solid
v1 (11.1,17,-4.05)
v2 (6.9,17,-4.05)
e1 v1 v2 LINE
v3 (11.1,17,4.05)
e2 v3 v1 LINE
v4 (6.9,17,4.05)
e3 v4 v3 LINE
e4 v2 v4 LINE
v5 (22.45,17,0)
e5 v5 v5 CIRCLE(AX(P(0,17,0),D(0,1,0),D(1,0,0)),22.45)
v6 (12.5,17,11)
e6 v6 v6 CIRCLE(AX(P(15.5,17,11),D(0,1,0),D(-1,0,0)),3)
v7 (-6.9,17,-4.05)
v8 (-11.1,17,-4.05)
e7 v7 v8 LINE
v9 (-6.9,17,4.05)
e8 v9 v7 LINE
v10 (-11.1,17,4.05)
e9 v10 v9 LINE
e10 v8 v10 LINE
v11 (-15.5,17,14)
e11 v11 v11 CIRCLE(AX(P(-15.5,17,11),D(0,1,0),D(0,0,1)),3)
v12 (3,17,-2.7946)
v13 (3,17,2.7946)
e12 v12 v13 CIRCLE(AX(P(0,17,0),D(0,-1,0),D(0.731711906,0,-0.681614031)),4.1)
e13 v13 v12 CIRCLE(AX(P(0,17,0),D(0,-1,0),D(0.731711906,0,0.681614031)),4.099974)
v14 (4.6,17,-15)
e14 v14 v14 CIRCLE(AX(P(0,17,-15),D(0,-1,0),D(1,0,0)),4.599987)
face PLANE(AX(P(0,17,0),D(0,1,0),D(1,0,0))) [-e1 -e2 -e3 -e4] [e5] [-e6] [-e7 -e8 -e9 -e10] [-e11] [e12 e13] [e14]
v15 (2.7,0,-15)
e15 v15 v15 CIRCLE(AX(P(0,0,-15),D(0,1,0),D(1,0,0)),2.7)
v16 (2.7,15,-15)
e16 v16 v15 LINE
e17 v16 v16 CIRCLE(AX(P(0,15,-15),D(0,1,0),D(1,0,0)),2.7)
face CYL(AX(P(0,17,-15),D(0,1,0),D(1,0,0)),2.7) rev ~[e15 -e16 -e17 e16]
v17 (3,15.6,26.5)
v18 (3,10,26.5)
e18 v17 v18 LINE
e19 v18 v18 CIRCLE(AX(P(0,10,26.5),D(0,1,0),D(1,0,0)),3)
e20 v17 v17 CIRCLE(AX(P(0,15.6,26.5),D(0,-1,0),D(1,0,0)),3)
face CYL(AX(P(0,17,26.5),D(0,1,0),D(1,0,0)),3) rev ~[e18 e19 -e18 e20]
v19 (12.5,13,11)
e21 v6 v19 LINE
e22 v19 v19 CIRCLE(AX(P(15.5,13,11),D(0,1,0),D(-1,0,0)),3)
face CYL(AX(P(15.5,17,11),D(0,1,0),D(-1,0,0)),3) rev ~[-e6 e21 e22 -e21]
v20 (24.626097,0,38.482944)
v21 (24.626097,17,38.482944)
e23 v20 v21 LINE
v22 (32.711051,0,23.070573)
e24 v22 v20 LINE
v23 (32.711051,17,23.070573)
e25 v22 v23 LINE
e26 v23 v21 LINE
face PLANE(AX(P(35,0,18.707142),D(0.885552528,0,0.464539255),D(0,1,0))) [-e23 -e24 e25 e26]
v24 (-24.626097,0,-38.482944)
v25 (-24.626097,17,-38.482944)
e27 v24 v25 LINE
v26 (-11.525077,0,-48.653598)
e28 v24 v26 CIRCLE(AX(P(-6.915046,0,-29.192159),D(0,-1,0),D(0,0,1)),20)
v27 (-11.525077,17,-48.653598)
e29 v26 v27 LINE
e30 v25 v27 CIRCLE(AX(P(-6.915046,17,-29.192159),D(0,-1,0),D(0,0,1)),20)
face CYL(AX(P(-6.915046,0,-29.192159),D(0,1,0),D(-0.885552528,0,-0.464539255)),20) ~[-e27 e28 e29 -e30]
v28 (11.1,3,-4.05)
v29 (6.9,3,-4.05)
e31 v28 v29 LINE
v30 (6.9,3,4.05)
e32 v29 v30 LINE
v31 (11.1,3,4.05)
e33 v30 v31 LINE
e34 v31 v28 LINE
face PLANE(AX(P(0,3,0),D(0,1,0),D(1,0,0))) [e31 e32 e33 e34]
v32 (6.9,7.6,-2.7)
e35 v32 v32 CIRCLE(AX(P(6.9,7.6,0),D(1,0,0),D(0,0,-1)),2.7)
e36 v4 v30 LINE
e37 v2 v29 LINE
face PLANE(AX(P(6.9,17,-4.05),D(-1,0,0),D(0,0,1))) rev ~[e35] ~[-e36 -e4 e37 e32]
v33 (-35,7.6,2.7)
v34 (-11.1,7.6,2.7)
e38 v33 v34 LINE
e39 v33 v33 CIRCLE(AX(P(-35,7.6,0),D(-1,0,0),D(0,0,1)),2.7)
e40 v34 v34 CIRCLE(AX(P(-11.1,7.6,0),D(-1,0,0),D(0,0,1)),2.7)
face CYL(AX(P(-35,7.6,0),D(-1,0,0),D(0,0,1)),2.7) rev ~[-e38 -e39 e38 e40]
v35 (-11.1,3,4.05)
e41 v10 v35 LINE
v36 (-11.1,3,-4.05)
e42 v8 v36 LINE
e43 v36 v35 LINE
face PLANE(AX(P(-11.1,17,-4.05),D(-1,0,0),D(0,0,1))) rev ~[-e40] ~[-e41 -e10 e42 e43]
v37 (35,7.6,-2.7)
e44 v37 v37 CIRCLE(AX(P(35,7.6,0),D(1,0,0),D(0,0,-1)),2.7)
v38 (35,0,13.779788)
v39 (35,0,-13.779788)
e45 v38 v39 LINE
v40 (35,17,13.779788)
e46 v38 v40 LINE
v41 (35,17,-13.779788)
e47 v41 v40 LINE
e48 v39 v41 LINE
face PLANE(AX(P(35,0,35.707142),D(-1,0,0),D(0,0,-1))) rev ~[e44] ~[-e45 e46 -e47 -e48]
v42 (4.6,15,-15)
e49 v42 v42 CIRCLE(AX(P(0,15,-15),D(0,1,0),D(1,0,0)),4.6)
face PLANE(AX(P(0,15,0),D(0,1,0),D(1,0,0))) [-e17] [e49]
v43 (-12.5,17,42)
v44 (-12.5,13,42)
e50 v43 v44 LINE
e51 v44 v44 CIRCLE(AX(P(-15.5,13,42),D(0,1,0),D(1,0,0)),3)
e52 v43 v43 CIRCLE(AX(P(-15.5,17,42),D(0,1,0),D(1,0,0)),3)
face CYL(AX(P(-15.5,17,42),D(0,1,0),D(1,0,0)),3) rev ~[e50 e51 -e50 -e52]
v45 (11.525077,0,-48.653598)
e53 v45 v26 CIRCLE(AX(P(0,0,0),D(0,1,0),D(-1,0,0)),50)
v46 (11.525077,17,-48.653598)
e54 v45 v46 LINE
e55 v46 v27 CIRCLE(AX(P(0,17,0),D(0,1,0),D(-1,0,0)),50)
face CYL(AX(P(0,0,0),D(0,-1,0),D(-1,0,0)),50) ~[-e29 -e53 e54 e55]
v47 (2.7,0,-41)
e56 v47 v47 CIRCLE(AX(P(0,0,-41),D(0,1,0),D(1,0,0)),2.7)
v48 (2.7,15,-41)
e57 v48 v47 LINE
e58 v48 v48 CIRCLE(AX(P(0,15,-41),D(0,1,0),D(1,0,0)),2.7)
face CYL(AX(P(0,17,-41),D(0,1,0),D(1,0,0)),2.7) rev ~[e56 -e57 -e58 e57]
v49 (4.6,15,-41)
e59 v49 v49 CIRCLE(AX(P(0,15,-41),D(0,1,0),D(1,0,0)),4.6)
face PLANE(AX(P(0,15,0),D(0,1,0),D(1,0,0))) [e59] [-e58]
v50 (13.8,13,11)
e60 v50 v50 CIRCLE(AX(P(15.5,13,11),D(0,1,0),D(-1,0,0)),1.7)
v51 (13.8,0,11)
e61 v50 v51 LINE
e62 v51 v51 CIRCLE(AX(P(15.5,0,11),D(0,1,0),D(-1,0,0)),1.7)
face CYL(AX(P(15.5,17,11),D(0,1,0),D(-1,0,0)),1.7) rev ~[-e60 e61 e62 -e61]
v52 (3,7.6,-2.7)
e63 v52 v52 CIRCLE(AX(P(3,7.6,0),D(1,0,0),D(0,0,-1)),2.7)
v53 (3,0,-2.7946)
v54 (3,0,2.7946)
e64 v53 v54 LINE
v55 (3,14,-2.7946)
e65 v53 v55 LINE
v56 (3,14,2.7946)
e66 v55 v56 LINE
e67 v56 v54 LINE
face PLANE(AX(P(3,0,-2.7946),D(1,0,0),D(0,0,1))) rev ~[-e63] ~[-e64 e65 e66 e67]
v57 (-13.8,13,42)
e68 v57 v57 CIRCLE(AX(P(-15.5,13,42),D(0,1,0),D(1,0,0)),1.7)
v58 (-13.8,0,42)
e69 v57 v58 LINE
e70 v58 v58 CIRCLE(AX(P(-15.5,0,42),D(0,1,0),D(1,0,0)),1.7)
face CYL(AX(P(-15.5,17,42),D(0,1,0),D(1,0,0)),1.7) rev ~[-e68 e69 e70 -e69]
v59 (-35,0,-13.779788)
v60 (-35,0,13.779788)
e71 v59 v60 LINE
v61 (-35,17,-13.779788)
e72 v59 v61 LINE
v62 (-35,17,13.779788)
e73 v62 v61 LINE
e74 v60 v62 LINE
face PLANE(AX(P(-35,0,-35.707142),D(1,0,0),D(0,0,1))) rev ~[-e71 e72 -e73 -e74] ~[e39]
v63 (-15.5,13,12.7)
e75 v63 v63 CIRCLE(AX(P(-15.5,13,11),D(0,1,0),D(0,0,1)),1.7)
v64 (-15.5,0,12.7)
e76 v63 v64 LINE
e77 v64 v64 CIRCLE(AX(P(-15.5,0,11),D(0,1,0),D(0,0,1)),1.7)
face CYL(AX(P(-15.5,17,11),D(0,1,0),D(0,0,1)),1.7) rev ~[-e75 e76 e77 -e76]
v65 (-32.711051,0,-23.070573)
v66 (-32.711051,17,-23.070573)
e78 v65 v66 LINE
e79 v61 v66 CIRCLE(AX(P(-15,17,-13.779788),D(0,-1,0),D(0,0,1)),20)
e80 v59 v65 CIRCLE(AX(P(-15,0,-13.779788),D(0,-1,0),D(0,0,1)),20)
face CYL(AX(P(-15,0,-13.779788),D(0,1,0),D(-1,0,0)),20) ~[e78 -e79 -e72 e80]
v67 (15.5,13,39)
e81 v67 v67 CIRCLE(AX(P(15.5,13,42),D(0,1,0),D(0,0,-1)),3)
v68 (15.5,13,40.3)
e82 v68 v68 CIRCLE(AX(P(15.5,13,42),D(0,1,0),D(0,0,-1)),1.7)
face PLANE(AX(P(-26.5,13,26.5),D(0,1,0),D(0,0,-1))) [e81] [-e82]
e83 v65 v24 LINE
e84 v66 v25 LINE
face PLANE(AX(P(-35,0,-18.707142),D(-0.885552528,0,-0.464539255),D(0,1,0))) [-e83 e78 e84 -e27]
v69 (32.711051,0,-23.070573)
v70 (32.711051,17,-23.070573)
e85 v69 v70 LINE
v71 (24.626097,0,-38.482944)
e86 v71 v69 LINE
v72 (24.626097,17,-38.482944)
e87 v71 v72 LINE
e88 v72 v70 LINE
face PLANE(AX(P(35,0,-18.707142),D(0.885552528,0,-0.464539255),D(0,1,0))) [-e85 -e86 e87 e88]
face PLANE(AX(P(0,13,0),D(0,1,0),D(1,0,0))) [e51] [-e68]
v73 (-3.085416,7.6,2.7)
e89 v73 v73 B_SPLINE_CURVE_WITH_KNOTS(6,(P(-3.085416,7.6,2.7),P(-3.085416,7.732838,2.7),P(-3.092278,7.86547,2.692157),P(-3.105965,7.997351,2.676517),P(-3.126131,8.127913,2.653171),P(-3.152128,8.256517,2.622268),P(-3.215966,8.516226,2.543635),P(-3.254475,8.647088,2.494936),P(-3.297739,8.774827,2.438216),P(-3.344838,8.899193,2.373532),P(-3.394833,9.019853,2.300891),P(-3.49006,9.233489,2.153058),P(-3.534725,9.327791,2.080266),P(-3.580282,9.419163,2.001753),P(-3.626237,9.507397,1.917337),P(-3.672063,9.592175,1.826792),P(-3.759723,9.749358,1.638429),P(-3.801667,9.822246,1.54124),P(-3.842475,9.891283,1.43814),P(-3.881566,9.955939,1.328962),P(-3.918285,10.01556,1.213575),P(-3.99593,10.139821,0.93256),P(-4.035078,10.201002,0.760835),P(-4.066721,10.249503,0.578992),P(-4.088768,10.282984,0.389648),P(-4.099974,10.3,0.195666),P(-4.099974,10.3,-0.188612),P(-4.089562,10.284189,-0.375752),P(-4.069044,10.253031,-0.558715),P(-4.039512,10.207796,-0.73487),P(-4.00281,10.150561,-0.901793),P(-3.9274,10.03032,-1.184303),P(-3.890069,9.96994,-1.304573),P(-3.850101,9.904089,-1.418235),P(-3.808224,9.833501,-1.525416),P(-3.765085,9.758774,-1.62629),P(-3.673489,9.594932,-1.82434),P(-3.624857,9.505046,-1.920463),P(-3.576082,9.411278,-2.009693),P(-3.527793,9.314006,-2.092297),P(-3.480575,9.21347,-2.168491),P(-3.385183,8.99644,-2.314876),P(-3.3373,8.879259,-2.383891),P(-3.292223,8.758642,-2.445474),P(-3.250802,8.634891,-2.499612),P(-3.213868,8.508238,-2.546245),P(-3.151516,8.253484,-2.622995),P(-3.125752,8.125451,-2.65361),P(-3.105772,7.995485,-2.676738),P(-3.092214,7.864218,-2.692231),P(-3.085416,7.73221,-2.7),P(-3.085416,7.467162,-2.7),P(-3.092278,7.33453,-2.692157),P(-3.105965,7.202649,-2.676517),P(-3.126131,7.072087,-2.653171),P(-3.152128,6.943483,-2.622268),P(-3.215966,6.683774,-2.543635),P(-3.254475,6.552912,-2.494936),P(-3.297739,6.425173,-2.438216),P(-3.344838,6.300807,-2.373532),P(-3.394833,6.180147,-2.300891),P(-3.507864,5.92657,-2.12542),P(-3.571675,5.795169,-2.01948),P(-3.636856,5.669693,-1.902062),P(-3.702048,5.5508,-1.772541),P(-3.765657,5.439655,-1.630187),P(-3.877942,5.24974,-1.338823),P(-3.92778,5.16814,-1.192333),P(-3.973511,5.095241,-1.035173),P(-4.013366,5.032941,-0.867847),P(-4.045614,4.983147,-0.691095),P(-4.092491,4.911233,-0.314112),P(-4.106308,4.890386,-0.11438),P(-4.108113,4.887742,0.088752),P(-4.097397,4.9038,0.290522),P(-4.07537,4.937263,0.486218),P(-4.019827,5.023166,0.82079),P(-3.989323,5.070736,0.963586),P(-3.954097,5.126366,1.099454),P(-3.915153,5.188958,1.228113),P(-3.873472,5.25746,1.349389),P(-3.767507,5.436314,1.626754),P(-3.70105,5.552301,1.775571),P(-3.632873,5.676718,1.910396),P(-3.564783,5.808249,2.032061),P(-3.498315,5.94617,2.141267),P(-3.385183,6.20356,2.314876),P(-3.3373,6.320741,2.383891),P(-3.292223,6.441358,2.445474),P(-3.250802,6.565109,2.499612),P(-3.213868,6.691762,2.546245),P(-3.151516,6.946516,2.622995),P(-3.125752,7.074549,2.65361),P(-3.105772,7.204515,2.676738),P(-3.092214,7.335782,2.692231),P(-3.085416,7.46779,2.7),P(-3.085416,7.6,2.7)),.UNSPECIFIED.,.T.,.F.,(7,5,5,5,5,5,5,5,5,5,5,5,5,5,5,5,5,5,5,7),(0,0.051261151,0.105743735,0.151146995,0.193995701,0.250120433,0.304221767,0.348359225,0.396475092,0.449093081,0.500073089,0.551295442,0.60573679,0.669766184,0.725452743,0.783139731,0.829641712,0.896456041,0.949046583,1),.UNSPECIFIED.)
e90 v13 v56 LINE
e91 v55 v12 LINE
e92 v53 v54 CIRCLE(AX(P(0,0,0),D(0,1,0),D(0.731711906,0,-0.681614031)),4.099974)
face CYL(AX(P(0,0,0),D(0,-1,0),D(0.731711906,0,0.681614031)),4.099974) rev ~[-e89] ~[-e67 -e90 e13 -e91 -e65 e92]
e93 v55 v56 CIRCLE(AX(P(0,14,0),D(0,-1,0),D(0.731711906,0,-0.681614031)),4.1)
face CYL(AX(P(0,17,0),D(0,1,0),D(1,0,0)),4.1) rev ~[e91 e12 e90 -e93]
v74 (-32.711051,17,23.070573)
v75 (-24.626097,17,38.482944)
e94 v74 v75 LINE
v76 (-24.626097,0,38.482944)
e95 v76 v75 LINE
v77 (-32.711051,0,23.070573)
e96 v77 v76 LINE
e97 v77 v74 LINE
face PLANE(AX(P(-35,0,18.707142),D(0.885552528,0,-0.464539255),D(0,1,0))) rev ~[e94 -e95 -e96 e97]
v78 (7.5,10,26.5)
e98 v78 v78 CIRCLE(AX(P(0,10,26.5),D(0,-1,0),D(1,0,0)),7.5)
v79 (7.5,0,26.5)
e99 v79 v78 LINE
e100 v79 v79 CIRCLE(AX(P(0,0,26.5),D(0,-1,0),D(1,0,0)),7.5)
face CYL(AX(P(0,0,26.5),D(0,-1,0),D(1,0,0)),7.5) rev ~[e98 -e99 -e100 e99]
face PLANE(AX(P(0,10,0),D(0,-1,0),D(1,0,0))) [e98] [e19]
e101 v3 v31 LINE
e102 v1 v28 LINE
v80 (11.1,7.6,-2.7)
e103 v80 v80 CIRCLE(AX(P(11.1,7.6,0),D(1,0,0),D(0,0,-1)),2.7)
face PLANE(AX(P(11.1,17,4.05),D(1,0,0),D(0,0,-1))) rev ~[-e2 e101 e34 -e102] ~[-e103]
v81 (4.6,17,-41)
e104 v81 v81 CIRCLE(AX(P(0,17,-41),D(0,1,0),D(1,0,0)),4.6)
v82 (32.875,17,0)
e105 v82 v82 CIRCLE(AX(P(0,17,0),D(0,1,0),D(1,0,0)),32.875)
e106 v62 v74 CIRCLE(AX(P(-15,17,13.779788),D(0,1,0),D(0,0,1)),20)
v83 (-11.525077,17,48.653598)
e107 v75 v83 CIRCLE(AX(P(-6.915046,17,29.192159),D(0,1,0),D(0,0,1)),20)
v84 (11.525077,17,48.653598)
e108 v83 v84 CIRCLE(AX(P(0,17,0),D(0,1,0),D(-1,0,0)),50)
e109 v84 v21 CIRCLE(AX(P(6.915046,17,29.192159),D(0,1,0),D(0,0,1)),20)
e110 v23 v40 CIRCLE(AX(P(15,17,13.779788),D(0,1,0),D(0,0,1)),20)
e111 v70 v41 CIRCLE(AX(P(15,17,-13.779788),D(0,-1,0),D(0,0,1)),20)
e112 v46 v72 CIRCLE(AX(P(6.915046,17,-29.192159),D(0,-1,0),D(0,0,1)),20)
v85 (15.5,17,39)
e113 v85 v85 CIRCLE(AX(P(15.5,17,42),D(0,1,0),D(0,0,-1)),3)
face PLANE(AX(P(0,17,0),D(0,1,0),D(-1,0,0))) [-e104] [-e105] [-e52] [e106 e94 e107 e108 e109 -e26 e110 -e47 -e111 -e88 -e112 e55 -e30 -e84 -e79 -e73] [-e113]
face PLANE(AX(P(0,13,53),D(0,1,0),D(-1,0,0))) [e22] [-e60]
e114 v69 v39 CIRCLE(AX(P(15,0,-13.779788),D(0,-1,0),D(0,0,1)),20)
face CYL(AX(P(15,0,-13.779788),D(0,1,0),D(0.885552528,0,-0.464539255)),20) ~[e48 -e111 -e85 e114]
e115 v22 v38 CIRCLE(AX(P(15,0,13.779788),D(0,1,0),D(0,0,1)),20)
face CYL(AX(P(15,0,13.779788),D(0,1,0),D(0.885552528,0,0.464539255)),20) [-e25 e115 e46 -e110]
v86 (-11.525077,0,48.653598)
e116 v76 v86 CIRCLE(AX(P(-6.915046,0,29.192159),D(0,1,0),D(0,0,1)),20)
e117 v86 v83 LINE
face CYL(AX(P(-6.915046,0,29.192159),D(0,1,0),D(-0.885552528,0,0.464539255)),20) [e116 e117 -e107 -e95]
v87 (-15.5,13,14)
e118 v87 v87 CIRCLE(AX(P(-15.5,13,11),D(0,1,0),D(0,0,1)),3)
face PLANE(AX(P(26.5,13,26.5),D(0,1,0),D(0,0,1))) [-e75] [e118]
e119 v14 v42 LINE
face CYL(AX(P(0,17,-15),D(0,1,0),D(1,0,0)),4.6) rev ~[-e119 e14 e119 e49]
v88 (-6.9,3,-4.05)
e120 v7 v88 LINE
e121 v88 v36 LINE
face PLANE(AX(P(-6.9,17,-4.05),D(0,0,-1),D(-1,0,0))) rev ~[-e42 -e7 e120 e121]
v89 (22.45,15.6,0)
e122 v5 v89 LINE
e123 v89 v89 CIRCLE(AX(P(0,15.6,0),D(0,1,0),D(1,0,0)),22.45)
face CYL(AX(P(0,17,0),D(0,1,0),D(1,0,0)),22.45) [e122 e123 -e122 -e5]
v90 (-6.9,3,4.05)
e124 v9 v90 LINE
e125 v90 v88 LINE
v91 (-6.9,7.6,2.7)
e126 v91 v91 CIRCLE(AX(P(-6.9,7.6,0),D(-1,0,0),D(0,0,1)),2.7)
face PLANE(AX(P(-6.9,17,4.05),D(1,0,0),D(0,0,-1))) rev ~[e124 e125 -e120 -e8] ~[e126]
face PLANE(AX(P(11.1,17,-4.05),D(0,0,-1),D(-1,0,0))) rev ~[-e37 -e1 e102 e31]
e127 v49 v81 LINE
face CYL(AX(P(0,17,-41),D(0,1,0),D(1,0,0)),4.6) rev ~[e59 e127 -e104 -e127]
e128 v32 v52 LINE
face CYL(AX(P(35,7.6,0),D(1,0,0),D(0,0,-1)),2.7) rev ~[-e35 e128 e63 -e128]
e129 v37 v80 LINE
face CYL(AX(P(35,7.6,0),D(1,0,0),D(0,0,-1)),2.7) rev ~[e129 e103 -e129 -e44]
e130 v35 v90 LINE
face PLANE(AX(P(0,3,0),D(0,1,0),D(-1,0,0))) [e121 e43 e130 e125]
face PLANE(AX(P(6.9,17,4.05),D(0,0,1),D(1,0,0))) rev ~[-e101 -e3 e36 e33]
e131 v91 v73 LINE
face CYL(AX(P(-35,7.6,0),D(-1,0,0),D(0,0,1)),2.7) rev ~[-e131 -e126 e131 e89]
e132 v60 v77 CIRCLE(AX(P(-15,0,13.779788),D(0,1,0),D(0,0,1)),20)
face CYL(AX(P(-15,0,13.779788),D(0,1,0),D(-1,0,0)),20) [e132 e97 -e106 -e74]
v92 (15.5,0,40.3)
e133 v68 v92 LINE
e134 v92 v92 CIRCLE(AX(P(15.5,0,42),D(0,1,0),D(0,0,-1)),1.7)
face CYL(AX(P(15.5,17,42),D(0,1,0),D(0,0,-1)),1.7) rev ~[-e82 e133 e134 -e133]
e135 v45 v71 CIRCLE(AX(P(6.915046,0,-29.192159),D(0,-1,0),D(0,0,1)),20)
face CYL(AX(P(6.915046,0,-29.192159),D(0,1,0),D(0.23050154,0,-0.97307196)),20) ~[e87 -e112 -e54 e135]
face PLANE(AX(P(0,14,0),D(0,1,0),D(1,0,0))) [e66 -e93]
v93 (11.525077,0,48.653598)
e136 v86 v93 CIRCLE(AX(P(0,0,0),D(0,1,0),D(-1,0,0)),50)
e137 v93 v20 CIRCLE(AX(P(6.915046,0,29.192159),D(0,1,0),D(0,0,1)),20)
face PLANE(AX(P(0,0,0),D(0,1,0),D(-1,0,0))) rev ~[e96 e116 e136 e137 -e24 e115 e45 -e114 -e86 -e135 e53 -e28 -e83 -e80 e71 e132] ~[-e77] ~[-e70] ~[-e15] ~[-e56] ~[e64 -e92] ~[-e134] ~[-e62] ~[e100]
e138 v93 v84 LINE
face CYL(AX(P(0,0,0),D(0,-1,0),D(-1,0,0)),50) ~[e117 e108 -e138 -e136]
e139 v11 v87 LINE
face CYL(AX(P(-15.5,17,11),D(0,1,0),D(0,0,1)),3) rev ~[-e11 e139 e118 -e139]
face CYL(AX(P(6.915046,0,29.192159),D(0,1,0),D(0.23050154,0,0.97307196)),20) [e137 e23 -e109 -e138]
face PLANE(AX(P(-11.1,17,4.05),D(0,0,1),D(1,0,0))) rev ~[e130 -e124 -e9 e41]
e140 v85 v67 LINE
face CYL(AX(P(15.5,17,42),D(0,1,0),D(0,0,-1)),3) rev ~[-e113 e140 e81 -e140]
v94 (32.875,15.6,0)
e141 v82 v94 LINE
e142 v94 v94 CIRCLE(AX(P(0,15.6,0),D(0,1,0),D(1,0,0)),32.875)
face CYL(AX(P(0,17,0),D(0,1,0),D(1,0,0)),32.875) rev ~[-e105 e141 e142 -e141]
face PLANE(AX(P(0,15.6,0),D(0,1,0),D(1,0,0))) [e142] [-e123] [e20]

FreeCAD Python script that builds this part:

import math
import FreeCAD as App
import Part
import Sketcher


def edges_at(feature, points):
    """Names of the edges that pass closest to the given points."""
    edges = feature.Shape.Edges
    near = lambda p: min(range(len(edges)), key=lambda i: edges[i].distToShape(Part.Vertex(*p))[0])
    return sorted({f"Edge{near(p) + 1}" for p in points})


def add_polygon(sketch, points):
    """Adds a closed chain of lines whose ends are joined by coincident constraints."""
    first, n = sketch.GeometryCount, len(points)
    for a, b in zip(points, points[1:] + points[:1]):
        sketch.addGeometry(Part.LineSegment(App.Vector(*a, 0), App.Vector(*b, 0)), False)
    for i in range(n):
        sketch.addConstraint(Sketcher.Constraint("Coincident", first + i, 2, first + (i + 1) % n, 1))

doc = App.newDocument("Part")
body = doc.addObject("PartDesign::Body", "Body")

sketch1 = body.newObject("Sketcher::SketchObject", "Sketch")
sketch1.AttachmentSupport = (doc.getObject("XZ_Plane"), [""])
sketch1.MapMode = "FlatFace"
sketch1.addGeometry(Part.Circle(App.Vector(0, 0, 0), App.Vector(0, 0, 1), 50), False)
sketch1.addConstraint([
    Sketcher.Constraint("Coincident", 0, 3, -1, 1),
    Sketcher.Constraint("Diameter", 0, 100.0),
])
pad1 = body.newObject("PartDesign::Pad", "Pad")
pad1.Profile = sketch1
pad1.Length = 17
pad1.Reversed = True

sketch2 = body.newObject("Sketcher::SketchObject", "Sketch001")
sketch2.AttachmentSupport = (doc.getObject("XZ_Plane"), [""])
sketch2.MapMode = "FlatFace"
sketch2.AttachmentOffset = App.Placement(App.Vector(0, 0, -17), App.Rotation())
sketch2.addGeometry([
    Part.Circle(App.Vector(0, 0, 0), App.Vector(0, 0, 1), 33),
    Part.Circle(App.Vector(0, 0, 0), App.Vector(0, 0, 1), 22),
], False)
sketch2.addConstraint([
    Sketcher.Constraint("Coincident", 0, 3, -1, 1),
    Sketcher.Constraint("Coincident", 1, 3, -1, 1),
    Sketcher.Constraint("Diameter", 1, 44.9),
    Sketcher.Constraint("Diameter", 0, 65.75),
])
pocket1 = body.newObject("PartDesign::Pocket", "Pocket")
pocket1.Profile = sketch2
pocket1.Length = 1.4
pocket1.Reversed = True

sketch3 = body.newObject("Sketcher::SketchObject", "Sketch002")
sketch3.AttachmentSupport = (doc.getObject("XZ_Plane"), [""])
sketch3.MapMode = "FlatFace"
sketch3.AttachmentOffset = App.Placement(App.Vector(0, 0, -17), App.Rotation())
sketch3.addGeometry(Part.Circle(App.Vector(0, 0, 0), App.Vector(0, 0, 1), 22), False)
sketch3.addConstraint([
    Sketcher.Constraint("Coincident", 0, 3, -1, 1),
    Sketcher.Constraint("Diameter", 0, 44.9),
])
pad2 = body.newObject("PartDesign::Pad", "Pad001")
pad2.Profile = sketch3
pad2.Length = 1
pad2.Reversed = True

sketch4 = body.newObject("Sketcher::SketchObject", "Sketch003")
sketch4.AttachmentSupport = (doc.getObject("XZ_Plane"), [""])
sketch4.MapMode = "FlatFace"
sketch4.AttachmentOffset = App.Placement(App.Vector(0, 0, -18), App.Rotation())
sketch4.addGeometry([
    Part.LineSegment(App.Vector(2.9, 2.8, 0), App.Vector(2.9, -2.8, 0)),
    Part.ArcOfCircle(Part.Circle(App.Vector(0, 0, 0), App.Vector(0, 0, 1), 4), math.radians(44), math.radians(316)),
], False)
sketch4.addConstraint([
    Sketcher.Constraint("Coincident", 0, 1, 1, 1),
    Sketcher.Constraint("Coincident", 1, 2, 0, 2),
    Sketcher.Constraint("Vertical", 0),
    Sketcher.Constraint("Coincident", 1, 3, -1, 1),
    Sketcher.Constraint("Radius", 1, 4.0),
    Sketcher.Constraint("DistanceX", -1, 1, 0, 1, 2.9),
])
pocket2 = body.newObject("PartDesign::Pocket", "Pocket001")
pocket2.Profile = sketch4
pocket2.Type = "ThroughAll"
pocket2.Reversed = True

sketch5 = body.newObject("Sketcher::SketchObject", "Sketch004")
sketch5.AttachmentSupport = (doc.getObject("XZ_Plane"), [""])
sketch5.MapMode = "FlatFace"
sketch5.AttachmentOffset = App.Placement(App.Vector(0, 0, -18), App.Rotation())
sketch5.addGeometry([
    Part.LineSegment(App.Vector(3, 2.8, 0), App.Vector(3, -2.8, 0)),
    Part.ArcOfCircle(Part.Circle(App.Vector(0, 0, 0), App.Vector(0, 0, 1), 4.1), math.radians(43), math.radians(317)),
], False)
sketch5.addConstraint([
    Sketcher.Constraint("Coincident", 0, 1, 1, 1),
    Sketcher.Constraint("Coincident", 1, 2, 0, 2),
    Sketcher.Constraint("Vertical", 0),
    Sketcher.Constraint("Coincident", 1, 3, -1, 1),
    Sketcher.Constraint("Radius", 1, 4.1),
    Sketcher.Constraint("DistanceX", -1, 1, 0, 1, 3.0),
])
pocket3 = body.newObject("PartDesign::Pocket", "Pocket002")
pocket3.Profile = sketch5
pocket3.Type = "ThroughAll"
pocket3.Reversed = True

sketch6 = body.newObject("Sketcher::SketchObject", "Sketch005")
sketch6.AttachmentSupport = (doc.getObject("XZ_Plane"), [""])
sketch6.MapMode = "FlatFace"
sketch6.addGeometry([
    Part.LineSegment(App.Vector(-35, -36, 0), App.Vector(-35, 36, 0)),
    Part.ArcOfCircle(Part.Circle(App.Vector(0, 0, 0), App.Vector(0, 0, 1), 50), math.radians(134), math.radians(226)),
    Part.ArcOfCircle(Part.Circle(App.Vector(0, 0, 0), App.Vector(0, 0, 1), 50), math.radians(-46), math.radians(46)),
    Part.LineSegment(App.Vector(35, 36, 0), App.Vector(35, -36, 0)),
], False)
sketch6.addConstraint([
    Sketcher.Constraint("Coincident", 0, 1, 1, 2),
    Sketcher.Constraint("Coincident", 1, 1, 0, 2),
    Sketcher.Constraint("Coincident", 2, 1, 3, 2),
    Sketcher.Constraint("Coincident", 3, 1, 2, 2),
    Sketcher.Constraint("Vertical", 0),
    Sketcher.Constraint("Vertical", 3),
    Sketcher.Constraint("Coincident", 1, 3, -1, 1),
    Sketcher.Constraint("Coincident", 2, 3, -1, 1),
    Sketcher.Constraint("Equal", 1, 2),
    Sketcher.Constraint("Horizontal", 0, 1, 2, 1),
    Sketcher.Constraint("Radius", 1, 50.0),
    Sketcher.Constraint("DistanceX", 0, 1, 2, 1, 70.0),
])
pocket4 = body.newObject("PartDesign::Pocket", "Pocket003")
pocket4.Profile = sketch6
pocket4.Type = "ThroughAll"
doc.recompute()

chamfer = body.newObject("PartDesign::Chamfer", "Chamfer")
chamfer.Base = (pocket4, edges_at(pocket4, [
    (-35, 8.5, 35.707),
    (-35, 8.5, -35.707),
    (35, 8.5, -35.707),
    (35, 8.5, 35.707),
]))
chamfer.Size = 17
doc.recompute()

fillet = body.newObject("PartDesign::Fillet", "Fillet")
fillet.Base = (chamfer, edges_at(chamfer, [
    (-21.013, 8.5, -45.37),
    (-21.013, 8.5, 45.37),
    (-35, 8.5, -18.707),
    (-35, 8.5, 18.707),
    (21.013, 8.5, -45.37),
    (21.013, 8.5, 45.37),
    (35, 8.5, -18.707),
    (35, 8.5, 18.707),
]))
fillet.Radius = 20

sketch7 = body.newObject("Sketcher::SketchObject", "Sketch006")
sketch7.AttachmentSupport = (doc.getObject("XZ_Plane"), [""])
sketch7.MapMode = "FlatFace"
sketch7.AttachmentOffset = App.Placement(App.Vector(0, 0, -17), App.Rotation())
sketch7.addGeometry([
    Part.Circle(App.Vector(0, -41, 0), App.Vector(0, 0, 1), 2.7),
    Part.Circle(App.Vector(0, -15, 0), App.Vector(0, 0, 1), 2.7),
    Part.Circle(App.Vector(0, 15, 0), App.Vector(0, 0, 1), 2.7),
], False)
sketch7.addConstraint([
    Sketcher.Constraint("Equal", 0, 1),
    Sketcher.Constraint("Equal", 1, 2),
    Sketcher.Constraint("Symmetric", 1, 3, 2, 3, -1, 1),
    Sketcher.Constraint("PointOnObject", 0, 3, -2),
    Sketcher.Constraint("PointOnObject", 1, 3, -2),
    Sketcher.Constraint("Diameter", 0, 5.4),
    Sketcher.Constraint("DistanceY", 1, 3, -1, 1, 15.0),
    Sketcher.Constraint("DistanceY", 0, 3, 1, 3, 26.0),
])
pocket5 = body.newObject("PartDesign::Pocket", "Pocket004")
pocket5.Profile = sketch7
pocket5.Type = "ThroughAll"
pocket5.Midplane = True

sketch8 = body.newObject("Sketcher::SketchObject", "Sketch007")
sketch8.AttachmentSupport = (doc.getObject("XZ_Plane"), [""])
sketch8.MapMode = "FlatFace"
sketch8.AttachmentOffset = App.Placement(App.Vector(0, 0, -17), App.Rotation())
sketch8.addGeometry([
    Part.Circle(App.Vector(0, -41, 0), App.Vector(0, 0, 1), 4.6),
    Part.Circle(App.Vector(0, -15, 0), App.Vector(0, 0, 1), 4.6),
    Part.Circle(App.Vector(0, -15, 0), App.Vector(0, 0, 1), 2.7),
    Part.Circle(App.Vector(0, 15, 0), App.Vector(0, 0, 1), 4.6),
], False)
sketch8.addConstraint([
    Sketcher.Constraint("Coincident", 2, 3, 1, 3),
    Sketcher.Constraint("Equal", 0, 1),
    Sketcher.Constraint("Equal", 1, 3),
    Sketcher.Constraint("Symmetric", 1, 3, 3, 3, -1, 1),
    Sketcher.Constraint("PointOnObject", 0, 3, -2),
    Sketcher.Constraint("PointOnObject", 1, 3, -2),
    Sketcher.Constraint("Diameter", 0, 9.2),
    Sketcher.Constraint("Diameter", 2, 5.4),
    Sketcher.Constraint("DistanceY", 0, 3, -1, 1, 41.0),
    Sketcher.Constraint("DistanceY", 1, 3, -1, 1, 15.0),
])
pocket6 = body.newObject("PartDesign::Pocket", "Pocket005")
pocket6.Profile = sketch8
pocket6.Type = "TwoLengths"
pocket6.Length = 2
pocket6.Length2 = 2

sketch9 = body.newObject("Sketcher::SketchObject", "Sketch008")
sketch9.AttachmentSupport = (doc.getObject("XZ_Plane"), [""])
sketch9.MapMode = "FlatFace"
sketch9.AttachmentOffset = App.Placement(App.Vector(0, 0, -18), App.Rotation())
sketch9.addGeometry(Part.Circle(App.Vector(0, 0, 0), App.Vector(0, 0, 1), 9), False)
sketch9.addConstraint([
    Sketcher.Constraint("Coincident", 0, 3, -1, 1),
    Sketcher.Constraint("Diameter", 0, 18.0),
])
pad3 = body.newObject("PartDesign::Pad", "Pad002")
pad3.Profile = sketch9
pad3.Length = 2.5
pad3.Reversed = True

sketch10 = body.newObject("Sketcher::SketchObject", "Sketch009")
sketch10.AttachmentSupport = (doc.getObject("XZ_Plane"), [""])
sketch10.MapMode = "FlatFace"
sketch10.addGeometry([
    Part.ArcOfCircle(Part.Circle(App.Vector(0, 0, 0), App.Vector(0, 0, 1), 4.1), math.radians(43), math.radians(317)),
    Part.LineSegment(App.Vector(3, -2.8, 0), App.Vector(3, 2.8, 0)),
], False)
sketch10.addConstraint([
    Sketcher.Constraint("Coincident", 0, 1, 1, 2),
    Sketcher.Constraint("Coincident", 1, 1, 0, 2),
    Sketcher.Constraint("Vertical", 1),
    Sketcher.Constraint("Coincident", 0, 3, -1, 1),
    Sketcher.Constraint("Radius", 0, 4.1),
    Sketcher.Constraint("DistanceX", -1, 1, 0, 1, 3.0),
])
pocket7 = body.newObject("PartDesign::Pocket", "Pocket006")
pocket7.Profile = sketch10
pocket7.Type = "ThroughAll"
doc.recompute()

fillet2 = body.newObject("PartDesign::Fillet", "Fillet001")
fillet2.Base = (pocket7, edges_at(pocket7, [(-9, 18, 0)]))
fillet2.Radius = 2

sketch11 = body.newObject("Sketcher::SketchObject", "Sketch010")
sketch11.AttachmentSupport = (doc.getObject("XZ_Plane"), [""])
sketch11.MapMode = "FlatFace"
sketch11.AttachmentOffset = App.Placement(App.Vector(0, 0, -20.5), App.Rotation())
sketch11.addGeometry(Part.Circle(App.Vector(0, 0, 0), App.Vector(0, 0, 1), 4.2), False)
sketch11.addConstraint([
    Sketcher.Constraint("Coincident", 0, 3, -1, 1),
    Sketcher.Constraint("Diameter", 0, 8.3),
])
pocket8 = body.newObject("PartDesign::Pocket", "Pocket007")
pocket8.Profile = sketch11
pocket8.Length = 2
pocket8.Reversed = True

sketch12 = body.newObject("Sketcher::SketchObject", "Sketch011")
sketch12.AttachmentSupport = (doc.getObject("XZ_Plane"), [""])
sketch12.MapMode = "FlatFace"
sketch12.AttachmentOffset = App.Placement(App.Vector(0, 0, -18), App.Rotation())
sketch12.addGeometry([
    Part.Circle(App.Vector(0, 0, 0), App.Vector(0, 0, 1), 22.4),
    Part.ArcOfCircle(Part.Circle(App.Vector(0, 0, 0), App.Vector(0, 0, 1), 11), math.radians(-80), math.radians(80)),
    Part.ArcOfCircle(Part.Circle(App.Vector(0, 15, 0), App.Vector(0, 0, 1), 4.6), math.radians(-65), math.radians(245)),
    Part.ArcOfCircle(Part.Circle(App.Vector(0, 0, 0), App.Vector(0, 0, 1), 11), math.radians(100), math.radians(260)),
    Part.ArcOfCircle(Part.Circle(App.Vector(0, -15, 0), App.Vector(0, 0, 1), 4.6), math.radians(115), math.radians(425)),
], False)
sketch12.addConstraint([
    Sketcher.Constraint("Coincident", 1, 2, 2, 1),
    Sketcher.Constraint("Coincident", 2, 2, 3, 1),
    Sketcher.Constraint("Coincident", 3, 2, 4, 1),
    Sketcher.Constraint("Coincident", 4, 2, 1, 1),
    Sketcher.Constraint("Coincident", 0, 3, -1, 1),
    Sketcher.Constraint("Coincident", 1, 3, -1, 1),
    Sketcher.Constraint("Coincident", 3, 3, -1, 1),
    Sketcher.Constraint("Equal", 1, 3),
    Sketcher.Constraint("Equal", 2, 4),
    Sketcher.Constraint("Symmetric", 2, 3, 4, 3, -1, 1),
    Sketcher.Constraint("PointOnObject", 2, 3, -2),
    Sketcher.Constraint("Radius", 1, 11.0),
    Sketcher.Constraint("Diameter", 0, 44.9),
    Sketcher.Constraint("Radius", 2, 4.6),
    Sketcher.Constraint("DistanceY", -1, 1, 2, 3, 15.0),
])
pocket9 = body.newObject("PartDesign::Pocket", "Pocket008")
pocket9.Profile = sketch12
pocket9.Length = 1
pocket9.Reversed = True

sketch13 = body.newObject("Sketcher::SketchObject", "Sketch012")
sketch13.AttachmentSupport = (doc.getObject("XZ_Plane"), [""])
sketch13.MapMode = "FlatFace"
sketch13.AttachmentOffset = App.Placement(App.Vector(0, 0, -17), App.Rotation())
sketch13.addGeometry(Part.Circle(App.Vector(0, 0, 0), App.Vector(0, 0, 1), 13), False)
sketch13.addConstraint([
    Sketcher.Constraint("Coincident", 0, 3, -1, 1),
    Sketcher.Constraint("Diameter", 0, 26.9356),
])
pocket10 = body.newObject("PartDesign::Pocket", "Pocket009")
pocket10.Profile = sketch13
pocket10.Length = 17.5

sketch14 = body.newObject("Sketcher::SketchObject", "Sketch013")
sketch14.AttachmentSupport = (doc.getObject("XZ_Plane"), [""])
sketch14.MapMode = "FlatFace"
sketch14.AttachmentOffset = App.Placement(App.Vector(0, 0, -17), App.Rotation())
sketch14.addGeometry(Part.Circle(App.Vector(0, 0, 0), App.Vector(0, 0, 1), 4.1), False)
sketch14.addConstraint([
    Sketcher.Constraint("Coincident", 0, 3, -1, 1),
    Sketcher.Constraint("Diameter", 0, 8.2),
])
pocket11 = body.newObject("PartDesign::Pocket", "Pocket010")
pocket11.Profile = sketch14
pocket11.Length = 3
pocket11.Reversed = True

sketch15 = body.newObject("Sketcher::SketchObject", "Sketch014")
sketch15.AttachmentSupport = (doc.getObject("XZ_Plane"), [""])
sketch15.MapMode = "FlatFace"
sketch15.AttachmentOffset = App.Placement(App.Vector(0, 0, -17), App.Rotation())
sketch15.addGeometry(Part.Circle(App.Vector(-15.5, 42, 0), App.Vector(0, 0, 1), 1.7), False)
sketch15.addConstraint([
    Sketcher.Constraint("Diameter", 0, 3.4),
    Sketcher.Constraint("DistanceY", -1, 1, 0, 3, 42.0),
    Sketcher.Constraint("DistanceX", 0, 3, -1, 1, 15.5),
])
pocket12 = body.newObject("PartDesign::Pocket", "Pocket011")
pocket12.Profile = sketch15
pocket12.Type = "ThroughAll"
pocket12.Reversed = True

sketch16 = body.newObject("Sketcher::SketchObject", "Sketch015")
sketch16.AttachmentSupport = (doc.getObject("XZ_Plane"), [""])
sketch16.MapMode = "FlatFace"
sketch16.AttachmentOffset = App.Placement(App.Vector(0, 0, -17), App.Rotation())
add_polygon(sketch16, [(11.1, 4), (11.1, -4), (6.9, -4), (6.9, 4)])
sketch16.addConstraint([
    Sketcher.Constraint("Vertical", 0),
    Sketcher.Constraint("Horizontal", 1),
    Sketcher.Constraint("Vertical", 2),
    Sketcher.Constraint("Horizontal", 3),
    Sketcher.Constraint("DistanceX", 1, 2, 1, 1, 4.2),
    Sketcher.Constraint("DistanceY", 0, 2, 0, 1, 8.1),
    Sketcher.Constraint("DistanceX", -1, 1, 0, 2, 11.1),
    Sketcher.Constraint("DistanceY", 0, 2, -1, 1, 4.05),
])
pocket13 = body.newObject("PartDesign::Pocket", "Pocket012")
pocket13.Profile = sketch16
pocket13.Length = 14
pocket13.Reversed = True

sketch17 = body.newObject("Sketcher::SketchObject", "Sketch016")
sketch17.AttachmentSupport = (doc.getObject("YZ_Plane"), [""])
sketch17.MapMode = "FlatFace"
sketch17.AttachmentOffset = App.Placement(App.Vector(0, 0, 35), App.Rotation())
sketch17.addGeometry(Part.Circle(App.Vector(7.6, 0, 0), App.Vector(0, 0, 1), 2.7), False)
sketch17.addConstraint([
    Sketcher.Constraint("PointOnObject", 0, 3, -1),
    Sketcher.Constraint("Diameter", 0, 5.4),
    Sketcher.Constraint("DistanceX", -1, 1, 0, 3, 7.6),
])
pocket14 = body.newObject("PartDesign::Pocket", "Pocket013")
pocket14.Profile = sketch17
pocket14.Length = 35.25

sketch18 = body.newObject("Sketcher::SketchObject", "Sketch017")
sketch18.AttachmentSupport = (doc.getObject("XZ_Plane"), [""])
sketch18.MapMode = "FlatFace"
sketch18.AttachmentOffset = App.Placement(App.Vector(0, 0, -17), App.Rotation())
sketch18.addGeometry(Part.Circle(App.Vector(0, 26.5, 0), App.Vector(0, 0, 1), 3), False)
sketch18.addConstraint([
    Sketcher.Constraint("PointOnObject", 0, 3, -2),
    Sketcher.Constraint("Diameter", 0, 6.0),
    Sketcher.Constraint("DistanceY", -1, 1, 0, 3, 26.5),
])
pocket15 = body.newObject("PartDesign::Pocket", "Pocket014")
pocket15.Profile = sketch18
pocket15.Type = "ThroughAll"
pocket15.Reversed = True

sketch19 = body.newObject("Sketcher::SketchObject", "Sketch018")
sketch19.AttachmentSupport = (doc.getObject("XZ_Plane"), [""])
sketch19.MapMode = "FlatFace"
sketch19.AttachmentOffset = App.Placement(App.Vector(0, 0, -17), App.Rotation())
sketch19.addGeometry([
    Part.Circle(App.Vector(-15.5, 42, 0), App.Vector(0, 0, 1), 3),
    Part.Circle(App.Vector(-15.5, 42, 0), App.Vector(0, 0, 1), 1.7),
], False)
sketch19.addConstraint([
    Sketcher.Constraint("Coincident", 1, 3, 0, 3),
    Sketcher.Constraint("Diameter", 0, 6.0),
    Sketcher.Constraint("Diameter", 1, 3.4),
    Sketcher.Constraint("DistanceY", -1, 1, 0, 3, 42.0),
    Sketcher.Constraint("DistanceX", 0, 3, -1, 1, 15.5),
])
pocket16 = body.newObject("PartDesign::Pocket", "Pocket015")
pocket16.Profile = sketch19
pocket16.Length = 4
pocket16.Reversed = True
doc.recompute()

datumline = body.newObject("PartDesign::Line", "DatumLine")
datumline.Placement = App.Placement(App.Vector(0, 0, 26.5), App.Rotation(App.Vector(0, 0, 1), App.Vector(0, 1, 0)))
polarpattern = body.newObject("PartDesign::PolarPattern", "PolarPattern")
polarpattern.Originals = [pocket12, pocket15, pocket16]
polarpattern.Axis = (datumline, [""])
polarpattern.Angle = 360
polarpattern.Occurrences = 4
body.Tip = polarpattern

sketch20 = body.newObject("Sketcher::SketchObject", "Sketch019")
sketch20.AttachmentSupport = (doc.getObject("XZ_Plane"), [""])
sketch20.MapMode = "FlatFace"
sketch20.addGeometry(Part.Circle(App.Vector(0, 26, 0), App.Vector(0, 0, 1), 8), False)
sketch20.addConstraint([
    Sketcher.Constraint("PointOnObject", 0, 3, -2),
    Sketcher.Constraint("Diameter", 0, 15.0),
    Sketcher.Constraint("DistanceY", -1, 1, 0, 3, 26.5),
])
pocket17 = body.newObject("PartDesign::Pocket", "Pocket016")
pocket17.Profile = sketch20
pocket17.Length = 10

sketch21 = body.newObject("Sketcher::SketchObject", "Sketch020")
sketch21.AttachmentSupport = (doc.getObject("XZ_Plane"), [""])
sketch21.MapMode = "FlatFace"
sketch21.addGeometry(Part.Circle(App.Vector(0, 15, 0), App.Vector(0, 0, 1), 2.7), False)
sketch21.addConstraint([
    Sketcher.Constraint("PointOnObject", 0, 3, -2),
    Sketcher.Constraint("Diameter", 0, 5.4),
    Sketcher.Constraint("DistanceY", -1, 1, 0, 3, 15.0),
])
pad4 = body.newObject("PartDesign::Pad", "Pad003")
pad4.Profile = sketch21
pad4.Length = 17
pad4.Reversed = True

sketch22 = body.newObject("Sketcher::SketchObject", "Sketch021")
sketch22.AttachmentSupport = (doc.getObject("XZ_Plane"), [""])
sketch22.MapMode = "FlatFace"
sketch22.AttachmentOffset = App.Placement(App.Vector(0, 0, -17), App.Rotation())
sketch22.addGeometry(Part.Circle(App.Vector(0, 15, 0), App.Vector(0, 0, 1), 4.6), False)
sketch22.addConstraint([
    Sketcher.Constraint("PointOnObject", 0, 3, -2),
    Sketcher.Constraint("Diameter", 0, 9.2),
    Sketcher.Constraint("DistanceY", -1, 1, 0, 3, 15.0),
])
pad5 = body.newObject("PartDesign::Pad", "Pad004")
pad5.Profile = sketch22
pad5.Length = 3.75
doc.recompute()

polarpattern2 = body.newObject("PartDesign::PolarPattern", "PolarPattern001")
polarpattern2.Originals = [pocket13, pocket14]
polarpattern2.Axis = (doc.getObject("Y_Axis"), [""])
polarpattern2.Angle = 360
polarpattern2.Occurrences = 2
body.Tip = polarpattern2

doc.recompute()
